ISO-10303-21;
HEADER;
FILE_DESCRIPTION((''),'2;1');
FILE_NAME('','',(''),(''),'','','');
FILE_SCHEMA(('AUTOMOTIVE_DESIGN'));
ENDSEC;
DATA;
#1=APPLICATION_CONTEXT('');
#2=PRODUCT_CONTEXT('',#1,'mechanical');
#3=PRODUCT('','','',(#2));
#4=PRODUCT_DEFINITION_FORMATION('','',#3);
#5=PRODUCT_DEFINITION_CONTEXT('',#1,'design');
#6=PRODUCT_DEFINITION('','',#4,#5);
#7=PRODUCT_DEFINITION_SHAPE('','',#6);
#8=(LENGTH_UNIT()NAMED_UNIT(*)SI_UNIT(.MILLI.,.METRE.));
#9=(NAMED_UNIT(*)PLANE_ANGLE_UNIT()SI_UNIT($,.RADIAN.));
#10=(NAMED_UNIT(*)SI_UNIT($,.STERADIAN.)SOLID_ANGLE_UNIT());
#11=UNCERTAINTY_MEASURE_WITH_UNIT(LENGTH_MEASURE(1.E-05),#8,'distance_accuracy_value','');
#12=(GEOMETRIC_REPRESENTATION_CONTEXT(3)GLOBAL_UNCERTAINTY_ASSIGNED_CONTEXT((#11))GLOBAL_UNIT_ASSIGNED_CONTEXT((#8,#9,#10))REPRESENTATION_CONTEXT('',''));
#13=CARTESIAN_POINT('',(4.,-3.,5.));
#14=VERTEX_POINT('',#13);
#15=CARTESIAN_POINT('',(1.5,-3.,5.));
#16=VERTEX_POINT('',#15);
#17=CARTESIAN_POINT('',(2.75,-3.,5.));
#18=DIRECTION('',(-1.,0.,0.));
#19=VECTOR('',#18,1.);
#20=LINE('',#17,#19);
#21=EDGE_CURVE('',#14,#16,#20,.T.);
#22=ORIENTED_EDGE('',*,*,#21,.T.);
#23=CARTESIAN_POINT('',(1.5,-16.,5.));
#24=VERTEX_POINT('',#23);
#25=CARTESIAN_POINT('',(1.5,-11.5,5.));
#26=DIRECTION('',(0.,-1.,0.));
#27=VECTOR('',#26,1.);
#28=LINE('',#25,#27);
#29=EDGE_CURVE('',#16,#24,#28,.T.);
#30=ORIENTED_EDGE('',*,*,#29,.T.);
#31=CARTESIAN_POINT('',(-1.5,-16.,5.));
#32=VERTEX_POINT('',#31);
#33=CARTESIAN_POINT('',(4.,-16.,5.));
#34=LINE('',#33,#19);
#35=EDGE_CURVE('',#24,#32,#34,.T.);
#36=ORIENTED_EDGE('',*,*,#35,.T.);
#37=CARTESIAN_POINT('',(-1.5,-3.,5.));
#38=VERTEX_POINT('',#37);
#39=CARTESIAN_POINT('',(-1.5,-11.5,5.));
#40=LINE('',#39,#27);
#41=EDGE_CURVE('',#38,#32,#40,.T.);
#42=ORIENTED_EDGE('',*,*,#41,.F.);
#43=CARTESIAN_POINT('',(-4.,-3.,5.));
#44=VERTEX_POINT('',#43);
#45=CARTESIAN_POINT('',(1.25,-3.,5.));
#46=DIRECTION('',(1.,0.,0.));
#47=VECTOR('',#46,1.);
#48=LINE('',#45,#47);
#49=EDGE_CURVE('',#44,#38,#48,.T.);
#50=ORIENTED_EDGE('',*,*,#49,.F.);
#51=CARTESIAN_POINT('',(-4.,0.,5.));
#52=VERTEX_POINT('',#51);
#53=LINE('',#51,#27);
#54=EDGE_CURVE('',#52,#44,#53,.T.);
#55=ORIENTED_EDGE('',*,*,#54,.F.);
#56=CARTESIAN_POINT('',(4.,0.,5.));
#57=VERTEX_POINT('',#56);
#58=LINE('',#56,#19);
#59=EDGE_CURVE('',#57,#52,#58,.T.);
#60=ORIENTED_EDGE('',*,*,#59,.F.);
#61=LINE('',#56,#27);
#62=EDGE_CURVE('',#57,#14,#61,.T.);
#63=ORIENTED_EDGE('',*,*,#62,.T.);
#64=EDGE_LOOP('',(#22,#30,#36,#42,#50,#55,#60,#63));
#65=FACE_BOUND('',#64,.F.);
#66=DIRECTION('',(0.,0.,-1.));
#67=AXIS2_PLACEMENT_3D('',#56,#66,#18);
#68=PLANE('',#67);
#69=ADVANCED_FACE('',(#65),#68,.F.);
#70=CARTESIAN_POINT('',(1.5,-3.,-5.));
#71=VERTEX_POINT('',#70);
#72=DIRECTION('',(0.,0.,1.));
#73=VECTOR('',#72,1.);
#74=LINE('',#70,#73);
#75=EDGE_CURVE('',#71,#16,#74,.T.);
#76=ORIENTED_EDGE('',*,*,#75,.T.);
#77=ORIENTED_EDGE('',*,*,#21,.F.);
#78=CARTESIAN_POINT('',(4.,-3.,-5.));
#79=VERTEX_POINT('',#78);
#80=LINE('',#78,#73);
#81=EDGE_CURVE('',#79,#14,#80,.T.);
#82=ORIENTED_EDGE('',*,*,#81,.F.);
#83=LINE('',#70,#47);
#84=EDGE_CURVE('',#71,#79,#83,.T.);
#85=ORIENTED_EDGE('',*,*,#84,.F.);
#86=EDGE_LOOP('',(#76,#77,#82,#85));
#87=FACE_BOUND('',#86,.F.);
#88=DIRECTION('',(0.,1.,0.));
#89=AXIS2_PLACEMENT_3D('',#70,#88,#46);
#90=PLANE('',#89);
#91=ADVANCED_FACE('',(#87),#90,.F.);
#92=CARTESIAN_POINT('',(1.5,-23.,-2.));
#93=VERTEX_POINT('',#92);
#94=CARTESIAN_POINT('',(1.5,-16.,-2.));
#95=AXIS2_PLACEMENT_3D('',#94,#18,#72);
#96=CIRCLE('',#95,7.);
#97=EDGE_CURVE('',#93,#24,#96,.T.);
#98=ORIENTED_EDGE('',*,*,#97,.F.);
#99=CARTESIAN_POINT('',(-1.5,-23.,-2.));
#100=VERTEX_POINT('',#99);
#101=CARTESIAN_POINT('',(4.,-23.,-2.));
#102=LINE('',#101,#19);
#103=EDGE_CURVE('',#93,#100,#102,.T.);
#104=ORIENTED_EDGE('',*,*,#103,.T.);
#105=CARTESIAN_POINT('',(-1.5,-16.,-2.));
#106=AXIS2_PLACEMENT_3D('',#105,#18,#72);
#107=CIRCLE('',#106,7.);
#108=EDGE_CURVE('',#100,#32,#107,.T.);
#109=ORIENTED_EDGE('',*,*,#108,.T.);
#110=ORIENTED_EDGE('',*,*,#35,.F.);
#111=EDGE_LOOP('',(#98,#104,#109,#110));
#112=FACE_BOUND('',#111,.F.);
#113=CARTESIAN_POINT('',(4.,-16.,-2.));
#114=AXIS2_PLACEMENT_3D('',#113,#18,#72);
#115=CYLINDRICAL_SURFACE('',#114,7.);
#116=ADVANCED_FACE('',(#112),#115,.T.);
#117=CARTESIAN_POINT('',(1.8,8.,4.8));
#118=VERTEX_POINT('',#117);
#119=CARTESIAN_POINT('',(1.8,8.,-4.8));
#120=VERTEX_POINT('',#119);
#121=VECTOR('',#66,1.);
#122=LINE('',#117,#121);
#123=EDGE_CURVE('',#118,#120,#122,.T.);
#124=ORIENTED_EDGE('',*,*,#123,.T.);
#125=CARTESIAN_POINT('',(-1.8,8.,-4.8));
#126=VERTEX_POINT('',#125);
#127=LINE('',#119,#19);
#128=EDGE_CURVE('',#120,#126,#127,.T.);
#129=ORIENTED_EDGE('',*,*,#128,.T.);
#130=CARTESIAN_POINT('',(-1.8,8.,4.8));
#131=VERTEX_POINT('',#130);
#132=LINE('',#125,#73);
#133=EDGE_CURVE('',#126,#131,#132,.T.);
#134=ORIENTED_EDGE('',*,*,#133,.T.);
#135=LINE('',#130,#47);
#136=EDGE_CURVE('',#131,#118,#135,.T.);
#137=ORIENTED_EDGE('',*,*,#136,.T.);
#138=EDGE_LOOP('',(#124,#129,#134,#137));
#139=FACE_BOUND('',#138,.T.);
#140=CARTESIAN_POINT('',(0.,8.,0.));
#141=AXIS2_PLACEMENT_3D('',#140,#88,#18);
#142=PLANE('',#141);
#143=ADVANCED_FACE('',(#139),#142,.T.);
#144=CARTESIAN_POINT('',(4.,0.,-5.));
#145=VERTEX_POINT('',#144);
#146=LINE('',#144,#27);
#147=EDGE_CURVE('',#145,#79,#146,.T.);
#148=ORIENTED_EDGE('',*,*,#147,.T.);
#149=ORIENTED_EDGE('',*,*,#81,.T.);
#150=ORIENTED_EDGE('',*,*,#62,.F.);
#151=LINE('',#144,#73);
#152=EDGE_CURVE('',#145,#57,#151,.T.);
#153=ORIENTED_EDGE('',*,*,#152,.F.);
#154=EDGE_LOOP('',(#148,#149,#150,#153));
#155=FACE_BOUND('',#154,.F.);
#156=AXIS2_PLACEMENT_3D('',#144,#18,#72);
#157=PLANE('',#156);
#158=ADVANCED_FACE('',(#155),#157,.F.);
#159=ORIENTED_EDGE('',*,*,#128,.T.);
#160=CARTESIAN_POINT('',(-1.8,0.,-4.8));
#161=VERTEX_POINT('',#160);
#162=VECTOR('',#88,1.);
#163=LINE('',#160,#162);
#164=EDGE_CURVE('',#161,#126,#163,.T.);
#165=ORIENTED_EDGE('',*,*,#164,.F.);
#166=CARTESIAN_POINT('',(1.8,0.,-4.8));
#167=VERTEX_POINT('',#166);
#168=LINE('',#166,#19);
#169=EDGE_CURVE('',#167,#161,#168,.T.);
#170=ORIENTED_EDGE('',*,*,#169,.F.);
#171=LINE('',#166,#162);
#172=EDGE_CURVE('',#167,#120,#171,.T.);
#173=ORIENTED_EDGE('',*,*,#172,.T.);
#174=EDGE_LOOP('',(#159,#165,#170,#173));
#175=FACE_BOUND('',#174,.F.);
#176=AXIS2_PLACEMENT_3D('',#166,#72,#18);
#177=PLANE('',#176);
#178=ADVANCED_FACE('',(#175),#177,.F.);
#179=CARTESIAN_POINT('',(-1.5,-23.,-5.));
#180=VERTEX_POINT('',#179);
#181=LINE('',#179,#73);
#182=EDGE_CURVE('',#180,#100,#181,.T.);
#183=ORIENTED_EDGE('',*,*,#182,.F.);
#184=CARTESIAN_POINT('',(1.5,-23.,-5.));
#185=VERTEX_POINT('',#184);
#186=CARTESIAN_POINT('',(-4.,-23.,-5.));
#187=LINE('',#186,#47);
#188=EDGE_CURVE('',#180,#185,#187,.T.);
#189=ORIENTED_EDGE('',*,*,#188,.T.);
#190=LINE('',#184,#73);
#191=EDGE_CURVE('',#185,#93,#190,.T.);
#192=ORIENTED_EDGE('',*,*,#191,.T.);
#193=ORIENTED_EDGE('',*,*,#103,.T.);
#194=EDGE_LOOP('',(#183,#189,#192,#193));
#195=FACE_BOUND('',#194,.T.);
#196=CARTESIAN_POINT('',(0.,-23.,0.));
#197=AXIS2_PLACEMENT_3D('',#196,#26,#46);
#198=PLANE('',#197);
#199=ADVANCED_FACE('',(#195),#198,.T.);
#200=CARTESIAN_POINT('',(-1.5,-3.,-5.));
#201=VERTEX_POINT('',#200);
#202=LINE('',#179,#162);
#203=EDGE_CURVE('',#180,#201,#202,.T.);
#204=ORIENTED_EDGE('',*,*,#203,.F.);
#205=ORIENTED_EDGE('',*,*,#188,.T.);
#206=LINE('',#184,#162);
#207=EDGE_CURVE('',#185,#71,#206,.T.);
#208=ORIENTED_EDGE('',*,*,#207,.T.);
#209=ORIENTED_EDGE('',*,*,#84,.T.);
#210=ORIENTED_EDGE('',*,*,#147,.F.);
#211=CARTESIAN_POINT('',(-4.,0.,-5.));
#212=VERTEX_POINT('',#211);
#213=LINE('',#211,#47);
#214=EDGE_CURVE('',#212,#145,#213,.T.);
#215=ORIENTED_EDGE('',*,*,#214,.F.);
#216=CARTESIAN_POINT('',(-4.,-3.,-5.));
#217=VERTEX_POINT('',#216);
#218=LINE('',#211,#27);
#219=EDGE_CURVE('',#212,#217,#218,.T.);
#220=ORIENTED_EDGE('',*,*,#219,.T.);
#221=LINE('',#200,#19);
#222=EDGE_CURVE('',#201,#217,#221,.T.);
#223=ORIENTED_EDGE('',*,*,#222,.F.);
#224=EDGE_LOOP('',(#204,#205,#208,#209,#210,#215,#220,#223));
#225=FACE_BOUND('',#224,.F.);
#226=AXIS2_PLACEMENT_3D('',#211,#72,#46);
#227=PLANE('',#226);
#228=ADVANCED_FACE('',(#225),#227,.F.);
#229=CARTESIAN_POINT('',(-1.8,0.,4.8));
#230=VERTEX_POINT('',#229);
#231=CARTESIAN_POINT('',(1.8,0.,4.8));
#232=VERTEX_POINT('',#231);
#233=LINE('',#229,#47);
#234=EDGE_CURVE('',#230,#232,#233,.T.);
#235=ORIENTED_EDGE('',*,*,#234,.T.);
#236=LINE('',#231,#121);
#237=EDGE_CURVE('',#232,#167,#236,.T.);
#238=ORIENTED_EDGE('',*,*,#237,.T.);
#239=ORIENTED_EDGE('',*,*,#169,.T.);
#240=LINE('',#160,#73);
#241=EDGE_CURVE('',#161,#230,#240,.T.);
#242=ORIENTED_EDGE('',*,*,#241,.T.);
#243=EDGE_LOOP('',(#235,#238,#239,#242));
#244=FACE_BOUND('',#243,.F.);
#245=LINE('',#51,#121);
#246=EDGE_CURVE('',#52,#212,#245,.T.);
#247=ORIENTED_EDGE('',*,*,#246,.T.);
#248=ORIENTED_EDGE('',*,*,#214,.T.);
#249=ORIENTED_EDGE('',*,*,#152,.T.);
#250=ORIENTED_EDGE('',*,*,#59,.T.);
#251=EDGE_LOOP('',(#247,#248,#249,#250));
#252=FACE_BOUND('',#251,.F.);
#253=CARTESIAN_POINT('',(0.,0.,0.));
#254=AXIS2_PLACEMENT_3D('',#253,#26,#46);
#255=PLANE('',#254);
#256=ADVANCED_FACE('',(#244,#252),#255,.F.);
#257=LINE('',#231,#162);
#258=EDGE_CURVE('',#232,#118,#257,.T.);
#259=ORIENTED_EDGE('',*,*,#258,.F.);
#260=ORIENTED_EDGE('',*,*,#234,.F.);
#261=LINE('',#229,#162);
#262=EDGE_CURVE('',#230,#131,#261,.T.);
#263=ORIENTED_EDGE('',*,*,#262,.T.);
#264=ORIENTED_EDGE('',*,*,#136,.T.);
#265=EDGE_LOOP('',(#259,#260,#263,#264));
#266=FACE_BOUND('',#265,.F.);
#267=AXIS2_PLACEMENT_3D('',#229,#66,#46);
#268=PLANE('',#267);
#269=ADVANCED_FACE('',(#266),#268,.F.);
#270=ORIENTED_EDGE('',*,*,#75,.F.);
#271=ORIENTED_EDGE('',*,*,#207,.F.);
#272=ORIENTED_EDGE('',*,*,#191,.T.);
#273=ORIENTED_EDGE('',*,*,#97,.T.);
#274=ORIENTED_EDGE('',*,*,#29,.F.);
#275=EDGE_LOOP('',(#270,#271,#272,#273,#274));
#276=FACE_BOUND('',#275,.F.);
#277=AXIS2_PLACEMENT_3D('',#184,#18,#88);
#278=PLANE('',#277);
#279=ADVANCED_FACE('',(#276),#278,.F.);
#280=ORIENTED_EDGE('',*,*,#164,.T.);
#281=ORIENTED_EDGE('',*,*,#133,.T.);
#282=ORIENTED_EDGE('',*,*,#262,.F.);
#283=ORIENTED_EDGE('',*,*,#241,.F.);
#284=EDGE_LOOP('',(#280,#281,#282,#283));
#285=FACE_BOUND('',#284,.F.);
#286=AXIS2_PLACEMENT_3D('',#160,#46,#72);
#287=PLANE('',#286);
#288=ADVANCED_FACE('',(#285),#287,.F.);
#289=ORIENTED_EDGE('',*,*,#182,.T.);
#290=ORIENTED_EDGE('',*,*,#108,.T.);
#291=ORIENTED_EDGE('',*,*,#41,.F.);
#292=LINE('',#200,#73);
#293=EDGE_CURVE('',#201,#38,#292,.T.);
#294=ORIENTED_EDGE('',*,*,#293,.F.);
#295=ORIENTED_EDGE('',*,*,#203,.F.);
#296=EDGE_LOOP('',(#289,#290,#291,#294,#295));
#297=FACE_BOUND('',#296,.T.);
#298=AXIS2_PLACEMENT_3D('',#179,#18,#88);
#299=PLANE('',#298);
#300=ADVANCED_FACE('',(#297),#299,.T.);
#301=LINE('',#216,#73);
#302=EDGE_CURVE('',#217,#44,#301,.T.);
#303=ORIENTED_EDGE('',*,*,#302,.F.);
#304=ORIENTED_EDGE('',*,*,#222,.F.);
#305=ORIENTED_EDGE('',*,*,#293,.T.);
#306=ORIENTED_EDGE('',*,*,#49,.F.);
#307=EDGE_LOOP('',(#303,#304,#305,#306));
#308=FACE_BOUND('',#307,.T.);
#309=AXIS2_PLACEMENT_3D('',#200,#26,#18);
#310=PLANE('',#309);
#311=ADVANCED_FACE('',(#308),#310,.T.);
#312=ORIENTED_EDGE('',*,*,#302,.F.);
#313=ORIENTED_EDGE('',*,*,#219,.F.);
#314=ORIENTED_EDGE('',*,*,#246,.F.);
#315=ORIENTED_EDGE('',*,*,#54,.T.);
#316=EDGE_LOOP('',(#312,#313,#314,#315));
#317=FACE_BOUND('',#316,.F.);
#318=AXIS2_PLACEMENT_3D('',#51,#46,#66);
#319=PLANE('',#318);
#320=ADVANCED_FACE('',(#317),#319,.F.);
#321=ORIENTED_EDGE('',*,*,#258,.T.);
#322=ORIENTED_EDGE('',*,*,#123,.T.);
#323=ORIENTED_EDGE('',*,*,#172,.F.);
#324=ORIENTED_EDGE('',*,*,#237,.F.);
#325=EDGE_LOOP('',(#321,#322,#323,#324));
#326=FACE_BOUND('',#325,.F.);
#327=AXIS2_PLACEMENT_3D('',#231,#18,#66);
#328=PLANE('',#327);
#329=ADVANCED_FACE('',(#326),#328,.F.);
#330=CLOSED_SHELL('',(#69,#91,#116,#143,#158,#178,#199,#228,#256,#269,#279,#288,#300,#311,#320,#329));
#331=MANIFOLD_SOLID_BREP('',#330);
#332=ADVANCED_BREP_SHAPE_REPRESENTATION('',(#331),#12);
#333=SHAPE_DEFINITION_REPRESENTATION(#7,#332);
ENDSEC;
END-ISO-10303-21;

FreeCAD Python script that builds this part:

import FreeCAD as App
import Part
import Sketcher


def edges_at(feature, points):
    """Names of the edges that pass closest to the given points."""
    edges = feature.Shape.Edges
    near = lambda p: min(range(len(edges)), key=lambda i: edges[i].distToShape(Part.Vertex(*p))[0])
    return sorted({f"Edge{near(p) + 1}" for p in points})


def add_polygon(sketch, points):
    """Adds a closed chain of lines whose ends are joined by coincident constraints."""
    first, n = sketch.GeometryCount, len(points)
    for a, b in zip(points, points[1:] + points[:1]):
        sketch.addGeometry(Part.LineSegment(App.Vector(*a, 0), App.Vector(*b, 0)), False)
    for i in range(n):
        sketch.addConstraint(Sketcher.Constraint("Coincident", first + i, 2, first + (i + 1) % n, 1))

doc = App.newDocument("Part")
params = doc.addObject("Spreadsheet::Sheet", "Params")
for row, (alias, value) in enumerate([
    ("sketch1_width", "3.6 mm"),
    ("sketch1_height", "9.6 mm"),
    ("pad1_length", "8 mm"),
    ("sketch2_width", "8 mm"),
    ("sketch2_height", "10 mm"),
    ("pad2_length", "23 mm"),
    ("fillet_radius", "7 mm"),
    ("sketch3_height", "20 mm"),
    ("sketch3_width", "2.5 mm"),
], start=1):
    params.set(f"A{row}", alias)
    params.set(f"B{row}", "=" + value)
    params.setAlias(f"B{row}", alias)

body = doc.addObject("PartDesign::Body", "Body")

# Sketch on XZ plane
sketch1 = body.newObject("Sketcher::SketchObject", "Sketch")
sketch1.AttachmentSupport = (doc.getObject("XZ_Plane"), [""])
sketch1.MapMode = "FlatFace"
add_polygon(sketch1, [(1.8, 4.8), (1.8, -4.8), (-1.8, -4.8), (-1.8, 4.8)])  # lines 0-3
sketch1.addConstraint([
    Sketcher.Constraint("Vertical", 0),
    Sketcher.Constraint("Horizontal", 1),
    Sketcher.Constraint("Vertical", 2),
    Sketcher.Constraint("Horizontal", 3),
    Sketcher.Constraint("Symmetric", 0, 2, 2, 2, -1, 1),
    Sketcher.Constraint("DistanceX", 1, 2, 1, 1, 3.6),
    Sketcher.Constraint("DistanceY", 0, 2, 0, 1, 9.6),
])
sketch1.setExpression("Constraints[9]", "Params.sketch1_width")
sketch1.setExpression("Constraints[10]", "Params.sketch1_height")
pad1 = body.newObject("PartDesign::Pad", "Pad")
pad1.Profile = sketch1
pad1.setExpression("Length", "Params.pad1_length")
pad1.Reversed = True

# Sketch on XZ plane
sketch2 = body.newObject("Sketcher::SketchObject", "Sketch001")
sketch2.AttachmentSupport = (doc.getObject("XZ_Plane"), [""])
sketch2.MapMode = "FlatFace"
add_polygon(sketch2, [(-4, 5), (-4, -5), (4, -5), (4, 5)])  # lines 0-3
sketch2.addConstraint([
    Sketcher.Constraint("Vertical", 0),
    Sketcher.Constraint("Horizontal", 1),
    Sketcher.Constraint("Vertical", 2),
    Sketcher.Constraint("Horizontal", 3),
    Sketcher.Constraint("Symmetric", 0, 2, 2, 2, -1, 1),
    Sketcher.Constraint("DistanceX", 1, 1, 1, 2, 8.0),
    Sketcher.Constraint("DistanceY", 0, 2, 0, 1, 10.0),
])
sketch2.setExpression("Constraints[9]", "Params.sketch2_width")
sketch2.setExpression("Constraints[10]", "Params.sketch2_height")
pad2 = body.newObject("PartDesign::Pad", "Pad001")
pad2.Profile = sketch2
pad2.setExpression("Length", "Params.pad2_length")
doc.recompute()

fillet = body.newObject("PartDesign::Fillet", "Fillet")
fillet.Base = (pad2, edges_at(pad2, [(0, -23, 5)]))
fillet.setExpression("Radius", "Params.fillet_radius")

# Sketch on XY plane
sketch3 = body.newObject("Sketcher::SketchObject", "Sketch002")
sketch3.AttachmentSupport = (doc.getObject("XY_Plane"), [""])
sketch3.MapMode = "FlatFace"
sketch3.AttachmentOffset = App.Placement(App.Vector(0, 0, -5), App.Rotation())
add_polygon(sketch3, [(1.5, -3), (4, -3), (4, -23), (1.5, -23)])  # lines 0-3
add_polygon(sketch3, [(-1.5, -3), (-1.5, -23), (-4, -23), (-4, -3)])  # lines 4-7
sketch3.addConstraint([
    Sketcher.Constraint("Horizontal", 0),
    Sketcher.Constraint("Vertical", 1),
    Sketcher.Constraint("Horizontal", 2),
    Sketcher.Constraint("Vertical", 3),
    Sketcher.Constraint("Vertical", 4),
    Sketcher.Constraint("Horizontal", 5),
    Sketcher.Constraint("Vertical", 6),
    Sketcher.Constraint("Horizontal", 7),
    Sketcher.Constraint("Symmetric", 2, 2, 4, 2, -2),
    Sketcher.Constraint("Symmetric", 0, 2, 6, 2, -2),
    Sketcher.Constraint("DistanceY", 0, 2, -1, 1, 3.0),
    Sketcher.Constraint("DistanceX", 4, 2, 2, 2, 3.0),
    Sketcher.Constraint("DistanceY", 1, 2, 1, 1, 20.0),
    Sketcher.Constraint("DistanceX", 0, 1, 0, 2, 2.5),
])
sketch3.setExpression("Constraints[20]", "Params.sketch3_height")
sketch3.setExpression("Constraints[21]", "Params.sketch3_width")
pocket1 = body.newObject("PartDesign::Pocket", "Pocket")
pocket1.Profile = sketch3
pocket1.Type = "UpToFirst"
pocket1.Reversed = True

doc.recompute()
